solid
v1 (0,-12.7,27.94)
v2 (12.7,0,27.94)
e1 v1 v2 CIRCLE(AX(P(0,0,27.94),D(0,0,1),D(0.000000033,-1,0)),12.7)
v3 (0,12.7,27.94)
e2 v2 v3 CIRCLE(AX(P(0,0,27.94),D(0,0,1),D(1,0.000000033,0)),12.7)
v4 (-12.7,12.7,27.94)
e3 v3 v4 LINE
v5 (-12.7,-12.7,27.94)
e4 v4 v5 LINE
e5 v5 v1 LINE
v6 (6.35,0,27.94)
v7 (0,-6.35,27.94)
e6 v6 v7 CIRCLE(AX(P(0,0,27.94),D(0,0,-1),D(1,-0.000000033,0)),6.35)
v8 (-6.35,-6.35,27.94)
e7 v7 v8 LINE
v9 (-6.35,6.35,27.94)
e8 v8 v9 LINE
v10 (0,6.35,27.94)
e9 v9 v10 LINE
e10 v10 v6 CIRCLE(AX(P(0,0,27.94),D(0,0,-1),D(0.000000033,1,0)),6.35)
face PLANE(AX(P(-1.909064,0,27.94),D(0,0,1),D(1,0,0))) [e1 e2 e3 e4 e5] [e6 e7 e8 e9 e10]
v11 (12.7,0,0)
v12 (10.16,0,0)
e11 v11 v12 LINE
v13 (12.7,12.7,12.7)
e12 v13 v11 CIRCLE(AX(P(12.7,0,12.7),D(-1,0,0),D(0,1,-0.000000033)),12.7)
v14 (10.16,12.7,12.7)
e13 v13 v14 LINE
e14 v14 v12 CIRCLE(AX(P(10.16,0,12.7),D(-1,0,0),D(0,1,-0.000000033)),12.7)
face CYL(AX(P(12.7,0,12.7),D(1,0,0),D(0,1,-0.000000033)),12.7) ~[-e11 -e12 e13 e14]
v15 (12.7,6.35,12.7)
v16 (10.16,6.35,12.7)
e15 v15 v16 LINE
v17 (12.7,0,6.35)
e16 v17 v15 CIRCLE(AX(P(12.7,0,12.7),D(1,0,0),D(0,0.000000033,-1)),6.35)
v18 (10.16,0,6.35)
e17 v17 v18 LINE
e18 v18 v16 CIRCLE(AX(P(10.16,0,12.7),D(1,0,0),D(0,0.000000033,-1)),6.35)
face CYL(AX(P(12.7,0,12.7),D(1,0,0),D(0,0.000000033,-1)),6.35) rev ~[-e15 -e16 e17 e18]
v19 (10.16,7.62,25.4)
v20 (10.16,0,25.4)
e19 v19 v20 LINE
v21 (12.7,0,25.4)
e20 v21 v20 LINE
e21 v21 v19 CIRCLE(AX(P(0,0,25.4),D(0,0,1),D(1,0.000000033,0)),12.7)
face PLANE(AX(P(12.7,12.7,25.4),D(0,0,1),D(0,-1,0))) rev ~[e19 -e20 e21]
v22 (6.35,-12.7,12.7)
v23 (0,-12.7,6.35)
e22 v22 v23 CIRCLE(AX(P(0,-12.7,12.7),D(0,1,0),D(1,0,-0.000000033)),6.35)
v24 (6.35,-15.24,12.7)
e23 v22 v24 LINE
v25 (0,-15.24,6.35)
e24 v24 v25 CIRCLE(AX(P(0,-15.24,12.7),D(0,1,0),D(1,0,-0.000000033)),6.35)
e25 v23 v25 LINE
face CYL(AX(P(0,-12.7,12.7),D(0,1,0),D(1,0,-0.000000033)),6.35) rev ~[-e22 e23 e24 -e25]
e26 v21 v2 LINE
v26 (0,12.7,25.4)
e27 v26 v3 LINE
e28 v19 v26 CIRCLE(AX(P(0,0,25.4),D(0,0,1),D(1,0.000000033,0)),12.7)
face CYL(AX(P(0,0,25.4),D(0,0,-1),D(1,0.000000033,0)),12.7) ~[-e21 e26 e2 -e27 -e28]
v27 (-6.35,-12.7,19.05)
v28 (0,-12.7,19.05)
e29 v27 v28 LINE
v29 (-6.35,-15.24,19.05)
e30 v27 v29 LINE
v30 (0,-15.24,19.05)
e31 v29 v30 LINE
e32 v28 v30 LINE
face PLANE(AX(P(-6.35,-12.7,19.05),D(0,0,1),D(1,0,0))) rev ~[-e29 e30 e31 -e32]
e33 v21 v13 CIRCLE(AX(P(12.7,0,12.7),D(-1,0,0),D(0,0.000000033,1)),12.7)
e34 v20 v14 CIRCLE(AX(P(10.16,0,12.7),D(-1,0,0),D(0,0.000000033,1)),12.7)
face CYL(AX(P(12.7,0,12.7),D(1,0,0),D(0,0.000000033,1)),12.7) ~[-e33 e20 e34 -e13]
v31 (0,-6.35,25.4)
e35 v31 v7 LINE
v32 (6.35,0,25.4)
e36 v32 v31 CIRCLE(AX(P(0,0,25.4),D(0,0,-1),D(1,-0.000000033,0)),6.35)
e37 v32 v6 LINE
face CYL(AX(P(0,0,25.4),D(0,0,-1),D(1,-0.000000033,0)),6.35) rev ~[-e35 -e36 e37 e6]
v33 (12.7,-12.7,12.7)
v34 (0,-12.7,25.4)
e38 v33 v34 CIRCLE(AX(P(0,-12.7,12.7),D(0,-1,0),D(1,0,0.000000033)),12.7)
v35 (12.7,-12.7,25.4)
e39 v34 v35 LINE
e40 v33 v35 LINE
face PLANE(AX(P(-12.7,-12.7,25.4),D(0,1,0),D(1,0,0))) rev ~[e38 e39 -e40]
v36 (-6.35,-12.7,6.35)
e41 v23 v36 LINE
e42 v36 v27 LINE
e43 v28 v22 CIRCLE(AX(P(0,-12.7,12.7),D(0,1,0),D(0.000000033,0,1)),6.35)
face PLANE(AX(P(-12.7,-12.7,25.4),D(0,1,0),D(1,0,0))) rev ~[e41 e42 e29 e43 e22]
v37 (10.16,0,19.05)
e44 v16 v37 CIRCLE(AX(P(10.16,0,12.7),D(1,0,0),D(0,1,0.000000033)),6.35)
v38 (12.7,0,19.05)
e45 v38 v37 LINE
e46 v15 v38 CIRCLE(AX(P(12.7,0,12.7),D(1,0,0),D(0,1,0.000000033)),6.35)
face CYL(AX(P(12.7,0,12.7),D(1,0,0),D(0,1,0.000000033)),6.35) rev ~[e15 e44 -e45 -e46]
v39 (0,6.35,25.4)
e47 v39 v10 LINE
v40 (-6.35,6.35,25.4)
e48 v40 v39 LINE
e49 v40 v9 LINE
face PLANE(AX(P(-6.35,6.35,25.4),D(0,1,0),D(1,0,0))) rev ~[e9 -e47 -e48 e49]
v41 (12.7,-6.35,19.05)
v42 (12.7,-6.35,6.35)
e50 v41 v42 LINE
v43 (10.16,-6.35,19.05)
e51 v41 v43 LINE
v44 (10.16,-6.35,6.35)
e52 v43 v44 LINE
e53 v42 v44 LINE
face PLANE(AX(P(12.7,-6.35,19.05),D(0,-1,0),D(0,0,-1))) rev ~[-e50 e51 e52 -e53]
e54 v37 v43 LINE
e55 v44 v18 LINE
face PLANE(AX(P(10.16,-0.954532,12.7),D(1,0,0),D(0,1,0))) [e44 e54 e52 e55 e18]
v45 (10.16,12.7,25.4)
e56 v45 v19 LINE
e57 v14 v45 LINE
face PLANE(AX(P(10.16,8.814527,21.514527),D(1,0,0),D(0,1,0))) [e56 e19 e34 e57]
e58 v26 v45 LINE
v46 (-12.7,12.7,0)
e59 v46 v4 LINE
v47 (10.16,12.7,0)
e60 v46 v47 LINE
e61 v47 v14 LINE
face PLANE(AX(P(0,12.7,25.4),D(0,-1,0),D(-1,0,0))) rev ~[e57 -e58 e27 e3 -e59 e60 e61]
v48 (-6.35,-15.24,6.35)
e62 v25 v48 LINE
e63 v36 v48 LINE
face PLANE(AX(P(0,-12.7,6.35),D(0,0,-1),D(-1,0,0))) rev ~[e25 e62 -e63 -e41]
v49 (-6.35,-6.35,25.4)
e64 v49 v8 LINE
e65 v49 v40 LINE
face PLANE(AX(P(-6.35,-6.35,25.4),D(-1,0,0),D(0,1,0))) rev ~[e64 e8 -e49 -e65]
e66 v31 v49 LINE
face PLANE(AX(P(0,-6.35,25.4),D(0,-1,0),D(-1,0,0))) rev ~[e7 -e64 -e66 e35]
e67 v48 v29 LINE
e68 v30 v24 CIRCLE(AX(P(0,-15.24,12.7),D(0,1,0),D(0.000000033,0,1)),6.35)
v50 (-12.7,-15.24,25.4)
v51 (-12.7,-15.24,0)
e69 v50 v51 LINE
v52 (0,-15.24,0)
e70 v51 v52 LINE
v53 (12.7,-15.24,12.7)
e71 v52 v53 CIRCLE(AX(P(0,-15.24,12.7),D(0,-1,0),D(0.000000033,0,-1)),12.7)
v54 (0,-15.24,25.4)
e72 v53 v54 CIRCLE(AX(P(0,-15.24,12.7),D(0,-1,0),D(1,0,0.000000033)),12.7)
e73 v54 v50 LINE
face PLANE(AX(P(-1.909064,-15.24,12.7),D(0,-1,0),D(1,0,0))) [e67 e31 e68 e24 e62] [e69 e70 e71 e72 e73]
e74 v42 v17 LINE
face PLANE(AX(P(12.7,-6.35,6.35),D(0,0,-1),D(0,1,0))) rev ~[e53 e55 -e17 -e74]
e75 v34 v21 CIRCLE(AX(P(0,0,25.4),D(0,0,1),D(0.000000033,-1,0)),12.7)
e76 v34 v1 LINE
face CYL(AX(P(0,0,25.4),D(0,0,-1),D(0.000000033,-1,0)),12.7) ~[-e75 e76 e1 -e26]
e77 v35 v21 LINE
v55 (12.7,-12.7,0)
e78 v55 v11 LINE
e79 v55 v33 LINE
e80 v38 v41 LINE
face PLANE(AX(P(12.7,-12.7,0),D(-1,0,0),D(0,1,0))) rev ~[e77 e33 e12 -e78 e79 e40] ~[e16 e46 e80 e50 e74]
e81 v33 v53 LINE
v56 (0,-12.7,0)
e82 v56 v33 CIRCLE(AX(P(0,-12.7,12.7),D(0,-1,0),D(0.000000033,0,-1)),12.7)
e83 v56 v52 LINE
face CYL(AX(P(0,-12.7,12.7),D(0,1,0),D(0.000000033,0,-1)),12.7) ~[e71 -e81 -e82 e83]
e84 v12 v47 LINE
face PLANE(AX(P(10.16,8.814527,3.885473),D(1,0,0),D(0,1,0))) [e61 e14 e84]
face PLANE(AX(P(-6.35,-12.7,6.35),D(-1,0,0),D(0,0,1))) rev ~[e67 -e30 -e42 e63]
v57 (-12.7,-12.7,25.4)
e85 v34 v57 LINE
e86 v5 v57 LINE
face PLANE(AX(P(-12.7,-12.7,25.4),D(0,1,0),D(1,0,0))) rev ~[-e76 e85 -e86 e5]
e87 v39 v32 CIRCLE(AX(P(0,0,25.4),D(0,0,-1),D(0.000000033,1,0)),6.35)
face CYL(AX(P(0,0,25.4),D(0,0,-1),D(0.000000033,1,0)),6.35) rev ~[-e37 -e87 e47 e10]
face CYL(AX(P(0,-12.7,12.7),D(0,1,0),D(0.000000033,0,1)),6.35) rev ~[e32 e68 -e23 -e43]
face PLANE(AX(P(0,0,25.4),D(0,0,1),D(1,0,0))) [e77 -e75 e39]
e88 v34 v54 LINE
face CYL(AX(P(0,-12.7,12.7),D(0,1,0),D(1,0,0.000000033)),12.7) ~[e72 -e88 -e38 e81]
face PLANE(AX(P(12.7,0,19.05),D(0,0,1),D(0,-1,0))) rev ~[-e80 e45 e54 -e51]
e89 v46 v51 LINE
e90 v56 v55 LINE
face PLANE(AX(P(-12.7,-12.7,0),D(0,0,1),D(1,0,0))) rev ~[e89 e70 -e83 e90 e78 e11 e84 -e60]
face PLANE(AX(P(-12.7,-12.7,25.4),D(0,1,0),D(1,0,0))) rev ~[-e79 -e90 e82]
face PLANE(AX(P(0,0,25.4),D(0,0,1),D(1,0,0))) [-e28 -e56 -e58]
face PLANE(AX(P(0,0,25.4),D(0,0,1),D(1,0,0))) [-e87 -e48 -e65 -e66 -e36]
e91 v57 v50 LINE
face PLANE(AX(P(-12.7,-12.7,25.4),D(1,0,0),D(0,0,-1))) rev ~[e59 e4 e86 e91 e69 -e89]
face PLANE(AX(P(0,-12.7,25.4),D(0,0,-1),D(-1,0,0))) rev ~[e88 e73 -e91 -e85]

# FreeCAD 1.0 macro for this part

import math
import FreeCAD as App
import Part
import Sketcher

V = App.Vector
Q = App.Units.Quantity

doc = App.newDocument("Part")
body = doc.addObject("PartDesign::Body", "Body")

# Sketch on XY plane
sketch1 = body.newObject("Sketcher::SketchObject", "Sketch")
sketch1.AttachmentSupport = (doc.getObject("XY_Plane"), [""])
sketch1.MapMode = "FlatFace"
sketch1.addGeometry([
    Part.LineSegment(V(-12.7, 12.7, 0), V(-12.7, -12.7, 0)),
    Part.LineSegment(V(-12.7, -12.7, 0), V(12.7, -12.7, 0)),
    Part.LineSegment(V(12.7, -12.7, 0), V(12.7, 12.7, 0)),
    Part.LineSegment(V(12.7, 12.7, 0), V(-12.7, 12.7, 0)),
], False)
sketch1.addConstraint([
    Sketcher.Constraint("Coincident", 0, 2, 1, 1),
    Sketcher.Constraint("Coincident", 1, 2, 2, 1),
    Sketcher.Constraint("Coincident", 2, 2, 3, 1),
    Sketcher.Constraint("Coincident", 3, 2, 0, 1),
    Sketcher.Constraint("Vertical", 0),
    Sketcher.Constraint("Horizontal", 1),
    Sketcher.Constraint("Vertical", 2),
    Sketcher.Constraint("Horizontal", 3),
    Sketcher.Constraint("Symmetric", 0, 2, 2, 2, -1, 1),
    Sketcher.Constraint("Equal", 3, 0),
    Sketcher.Constraint("DistanceX", 1, 1, 1, 2, Q("1 in")),
])
pad1 = body.newObject("PartDesign::Pad", "Pad")
pad1.Profile = sketch1
pad1.Length = Q("1 in")

# Sketch on XY plane
sketch2 = body.newObject("Sketcher::SketchObject", "Sketch001")
sketch2.AttachmentSupport = (doc.getObject("XY_Plane"), [""])
sketch2.MapMode = "FlatFace"
sketch2.AttachmentOffset = App.Placement(V(0, 0, 1 * 25.4), App.Rotation())
sketch2.addGeometry([
    Part.ArcOfCircle(Part.Circle(V(0, 0, 0), V(0, 0, 1), 12.7), math.radians(0.000002), math.radians(89.999998)),  # 0
    Part.LineSegment(V(0, 12.7, 0), V(-12.7, 12.7, 0)),  # 1
    Part.LineSegment(V(-12.7, 12.7, 0), V(-12.7, -12.7, 0)),  # 2
    Part.LineSegment(V(-12.7, -12.7, 0), V(0, -12.7, 0)),  # 3
    Part.ArcOfCircle(Part.Circle(V(0, 0, 0), V(0, 0, 1), 12.7), math.radians(-89.999998), math.radians(-0.000002)),  # 4
    Part.LineSegment(V(0, -6.35, 0), V(-6.35, -6.35, 0)),  # 5
    Part.LineSegment(V(-6.35, -6.35, 0), V(-6.35, 6.35, 0)),  # 6
    Part.LineSegment(V(-6.35, 6.35, 0), V(0, 6.35, 0)),  # 7
    Part.ArcOfCircle(Part.Circle(V(0, 0, 0), V(0, 0, 1), 6.35), math.radians(0.000002), math.radians(89.999998)),  # 8
    Part.ArcOfCircle(Part.Circle(V(0, 0, 0), V(0, 0, 1), 6.35), math.radians(-89.999998), math.radians(-0.000002)),  # 9
], False)
sketch2.addConstraint([
    Sketcher.Constraint("Tangent", 0, 2, 1, 1),
    Sketcher.Constraint("Coincident", 1, 2, 2, 1),
    Sketcher.Constraint("Coincident", 2, 2, 3, 1),
    Sketcher.Constraint("Tangent", 3, 2, 4, 1),
    Sketcher.Constraint("Tangent", 4, 2, 0, 1),
    Sketcher.Constraint("Coincident", 5, 2, 6, 1),
    Sketcher.Constraint("Coincident", 6, 2, 7, 1),
    Sketcher.Constraint("Tangent", 7, 2, 8, 2),
    Sketcher.Constraint("Tangent", 8, 1, 9, 2),
    Sketcher.Constraint("Tangent", 9, 1, 5, 1),
    Sketcher.Constraint("Horizontal", 1),
    Sketcher.Constraint("Vertical", 2),
    Sketcher.Constraint("Horizontal", 3),
    Sketcher.Constraint("Horizontal", 5),
    Sketcher.Constraint("Vertical", 6),
    Sketcher.Constraint("Horizontal", 7),
    Sketcher.Constraint("Coincident", 0, 3, -1, 1),
    Sketcher.Constraint("Coincident", 8, 3, -1, 1),
    Sketcher.Constraint("Equal", 0, 4),
    Sketcher.Constraint("Equal", 8, 9),
    Sketcher.Constraint("PointOnObject", 4, 2, -1),
    Sketcher.Constraint("PointOnObject", 8, 1, -1),
    Sketcher.Constraint("Equal", 3, 6),
    Sketcher.Constraint("Radius", 0, Q("0.5 in")),
    Sketcher.Constraint("Radius", 8, Q("0.25 in")),
    Sketcher.Constraint("DistanceX", 5, 2, 5, 1, Q("0.25 in")),
])
pad2 = body.newObject("PartDesign::Pad", "Pad001")
pad2.Profile = sketch2
pad2.Length = Q("0.1 in")

# Sketch on XZ plane
sketch3 = body.newObject("Sketcher::SketchObject", "Sketch002")
sketch3.AttachmentSupport = (doc.getObject("XZ_Plane"), [""])
sketch3.MapMode = "FlatFace"
sketch3.AttachmentOffset = App.Placement(V(0, 0, 0.5 * 25.4), App.Rotation())
sketch3.addGeometry([
    Part.LineSegment(V(-12.7, 25.4, 0), V(-12.7, 0, 0)),  # 0
    Part.LineSegment(V(-12.7, 0, 0), V(0, 0, 0)),  # 1
    Part.ArcOfCircle(Part.Circle(V(0, 12.7, 0), V(0, 0, 1), 12.7), math.radians(-89.999998), math.radians(-0.000002)),  # 2
    Part.ArcOfCircle(Part.Circle(V(0, 12.7, 0), V(0, 0, 1), 12.7), math.radians(0.000002), math.radians(89.999998)),  # 3
    Part.LineSegment(V(0, 25.4, 0), V(-12.7, 25.4, 0)),  # 4
    Part.LineSegment(V(-6.35, 6.35, 0), V(-6.35, 19.05, 0)),  # 5
    Part.LineSegment(V(-6.35, 19.05, 0), V(0, 19.05, 0)),  # 6
    Part.ArcOfCircle(Part.Circle(V(0, 12.7, 0), V(0, 0, 1), 6.35), math.radians(0.000002), math.radians(89.999998)),  # 7
    Part.ArcOfCircle(Part.Circle(V(0, 12.7, 0), V(0, 0, 1), 6.35), math.radians(-89.999998), math.radians(-0.000002)),  # 8
    Part.LineSegment(V(0, 6.35, 0), V(-6.35, 6.35, 0)),  # 9
], False)
sketch3.addConstraint([
    Sketcher.Constraint("Coincident", 0, 2, 1, 1),
    Sketcher.Constraint("Tangent", 1, 2, 2, 1),
    Sketcher.Constraint("Tangent", 2, 2, 3, 1),
    Sketcher.Constraint("Tangent", 3, 2, 4, 1),
    Sketcher.Constraint("Coincident", 4, 2, 0, 1),
    Sketcher.Constraint("Coincident", 5, 2, 6, 1),
    Sketcher.Constraint("Tangent", 6, 2, 7, 2),
    Sketcher.Constraint("Tangent", 7, 1, 8, 2),
    Sketcher.Constraint("Tangent", 8, 1, 9, 1),
    Sketcher.Constraint("Coincident", 9, 2, 5, 1),
    Sketcher.Constraint("Vertical", 0),
    Sketcher.Constraint("Horizontal", 1),
    Sketcher.Constraint("Horizontal", 4),
    Sketcher.Constraint("Vertical", 5),
    Sketcher.Constraint("Horizontal", 6),
    Sketcher.Constraint("Horizontal", 9),
    Sketcher.Constraint("Coincident", 1, 2, -1, 1),
    Sketcher.Constraint("Coincident", 7, 3, 2, 3),
    Sketcher.Constraint("Equal", 2, 3),
    Sketcher.Constraint("Equal", 7, 8),
    Sketcher.Constraint("Horizontal", 8, 3, 2, 2),
    Sketcher.Constraint("Horizontal", 2, 2, 7, 1),
    Sketcher.Constraint("Equal", 4, 5),
    Sketcher.Constraint("Radius", 2, Q("0.5 in")),
    Sketcher.Constraint("Radius", 7, Q("0.25 in")),
    Sketcher.Constraint("DistanceX", 6, 1, 6, 2, Q("0.25 in")),
])
pad3 = body.newObject("PartDesign::Pad", "Pad002")
pad3.Profile = sketch3
pad3.Length = Q("0.1 in")

# Sketch on YZ plane
sketch4 = body.newObject("Sketcher::SketchObject", "Sketch003")
sketch4.AttachmentSupport = (doc.getObject("YZ_Plane"), [""])
sketch4.MapMode = "FlatFace"
sketch4.AttachmentOffset = App.Placement(V(0, 0, 0.5 * 25.4), App.Rotation())
sketch4.addGeometry([
    Part.LineSegment(V(0, 19.05, 0), V(-6.35, 19.05, 0)),  # 0
    Part.LineSegment(V(-6.35, 19.05, 0), V(-6.35, 6.35, 0)),  # 1
    Part.LineSegment(V(-6.35, 6.35, 0), V(0, 6.35, 0)),  # 2
    Part.ArcOfCircle(Part.Circle(V(0, 12.7, 0), V(0, 0, 1), 6.35), math.radians(-89.999998), math.radians(-0.000002)),  # 3
    Part.ArcOfCircle(Part.Circle(V(0, 12.7, 0), V(0, 0, 1), 6.35), math.radians(0.000002), math.radians(89.999998)),  # 4
    Part.LineSegment(V(12.7, 25.4, 0), V(0, 25.4, 0)),  # 5
    Part.ArcOfCircle(Part.Circle(V(0, 12.7, 0), V(0, 0, 1), 12.7), math.radians(0.000002), math.radians(89.999998)),  # 6
    Part.LineSegment(V(12.7, 12.7, 0), V(12.7, 25.4, 0)),  # 7
    Part.LineSegment(V(12.7, 0, 0), V(12.7, 12.7, 0)),  # 8
    Part.ArcOfCircle(Part.Circle(V(0, 12.7, 0), V(0, 0, 1), 12.7), math.radians(-89.999998), math.radians(-0.000002)),  # 9
    Part.LineSegment(V(0, 0, 0), V(12.7, 0, 0)),  # 10
], False)
sketch4.addConstraint([
    Sketcher.Constraint("Coincident", 0, 2, 1, 1),
    Sketcher.Constraint("Coincident", 1, 2, 2, 1),
    Sketcher.Constraint("Tangent", 2, 2, 3, 1),
    Sketcher.Constraint("Tangent", 3, 2, 4, 1),
    Sketcher.Constraint("Tangent", 4, 2, 0, 1),
    Sketcher.Constraint("Tangent", 5, 2, 6, 2),
    Sketcher.Constraint("Tangent", 6, 1, 7, 1),
    Sketcher.Constraint("Coincident", 7, 2, 5, 1),
    Sketcher.Constraint("Tangent", 8, 2, 9, 2),
    Sketcher.Constraint("Tangent", 9, 1, 10, 1),
    Sketcher.Constraint("Coincident", 10, 2, 8, 1),
    Sketcher.Constraint("Horizontal", 0),
    Sketcher.Constraint("Vertical", 1),
    Sketcher.Constraint("Horizontal", 2),
    Sketcher.Constraint("Horizontal", 5),
    Sketcher.Constraint("Vertical", 7),
    Sketcher.Constraint("Vertical", 8),
    Sketcher.Constraint("Horizontal", 10),
    Sketcher.Constraint("Coincident", 9, 1, -1, 1),
    Sketcher.Constraint("Coincident", 6, 3, 3, 3),
    Sketcher.Constraint("Coincident", 9, 3, 3, 3),
    Sketcher.Constraint("Equal", 3, 4),
    Sketcher.Constraint("Equal", 6, 9),
    Sketcher.Constraint("Horizontal", 9, 3, 3, 2),
    Sketcher.Constraint("Equal", 10, 1),
    Sketcher.Constraint("Radius", 6, Q("0.5 in")),
    Sketcher.Constraint("DistanceX", 0, 2, 0, 1, Q("0.25 in")),
])
pocket1 = body.newObject("PartDesign::Pocket", "Pocket")
pocket1.Profile = sketch4
pocket1.Length = Q("0.1 in")

doc.recompute()
